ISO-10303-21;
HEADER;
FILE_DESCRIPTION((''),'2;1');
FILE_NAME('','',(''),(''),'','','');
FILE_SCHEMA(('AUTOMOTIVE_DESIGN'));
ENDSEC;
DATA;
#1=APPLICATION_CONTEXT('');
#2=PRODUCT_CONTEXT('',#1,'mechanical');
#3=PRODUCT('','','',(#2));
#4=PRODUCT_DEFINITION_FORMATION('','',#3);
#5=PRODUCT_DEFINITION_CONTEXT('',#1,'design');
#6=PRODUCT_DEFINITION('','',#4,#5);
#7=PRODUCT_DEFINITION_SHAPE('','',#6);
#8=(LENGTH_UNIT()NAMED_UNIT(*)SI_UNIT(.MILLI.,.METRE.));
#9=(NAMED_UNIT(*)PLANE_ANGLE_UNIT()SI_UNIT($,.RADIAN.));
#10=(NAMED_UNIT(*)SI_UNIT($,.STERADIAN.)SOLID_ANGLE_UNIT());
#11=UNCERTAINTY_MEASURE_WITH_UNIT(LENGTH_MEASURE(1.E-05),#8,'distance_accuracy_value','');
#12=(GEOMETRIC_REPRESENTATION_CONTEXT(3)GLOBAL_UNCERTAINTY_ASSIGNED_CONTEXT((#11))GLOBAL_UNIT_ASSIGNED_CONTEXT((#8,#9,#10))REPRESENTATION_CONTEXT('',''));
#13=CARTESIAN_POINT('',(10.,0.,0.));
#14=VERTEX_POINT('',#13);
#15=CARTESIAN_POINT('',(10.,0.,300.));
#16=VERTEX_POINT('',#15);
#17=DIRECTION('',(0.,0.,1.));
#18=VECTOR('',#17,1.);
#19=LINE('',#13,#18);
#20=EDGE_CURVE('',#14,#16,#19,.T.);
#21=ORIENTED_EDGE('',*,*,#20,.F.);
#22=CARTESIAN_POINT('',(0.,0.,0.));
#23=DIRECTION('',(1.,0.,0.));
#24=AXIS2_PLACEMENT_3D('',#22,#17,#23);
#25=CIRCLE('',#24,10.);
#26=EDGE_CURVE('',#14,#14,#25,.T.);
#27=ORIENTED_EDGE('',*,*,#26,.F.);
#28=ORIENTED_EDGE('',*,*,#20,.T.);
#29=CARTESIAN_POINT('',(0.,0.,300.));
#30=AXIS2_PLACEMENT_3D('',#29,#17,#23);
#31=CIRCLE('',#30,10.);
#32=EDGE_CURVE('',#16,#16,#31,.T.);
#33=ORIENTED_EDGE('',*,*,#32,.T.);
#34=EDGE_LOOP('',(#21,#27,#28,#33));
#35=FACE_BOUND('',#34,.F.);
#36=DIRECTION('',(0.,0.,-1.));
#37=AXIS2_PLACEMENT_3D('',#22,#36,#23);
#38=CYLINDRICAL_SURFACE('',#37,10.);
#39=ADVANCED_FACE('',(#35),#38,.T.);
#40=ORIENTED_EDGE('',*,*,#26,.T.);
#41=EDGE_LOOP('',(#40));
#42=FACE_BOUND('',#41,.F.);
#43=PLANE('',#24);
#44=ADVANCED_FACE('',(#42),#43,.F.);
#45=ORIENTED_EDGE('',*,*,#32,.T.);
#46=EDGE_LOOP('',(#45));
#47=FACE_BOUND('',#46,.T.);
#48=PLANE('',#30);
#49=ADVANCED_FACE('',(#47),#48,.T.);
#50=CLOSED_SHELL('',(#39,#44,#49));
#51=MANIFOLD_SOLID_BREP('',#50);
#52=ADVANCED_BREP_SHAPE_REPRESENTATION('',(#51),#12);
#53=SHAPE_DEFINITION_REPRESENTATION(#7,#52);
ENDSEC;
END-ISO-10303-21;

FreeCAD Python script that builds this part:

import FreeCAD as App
import Part
import Sketcher

V = App.Vector
Q = App.Units.Quantity

doc = App.newDocument("Part")
body = doc.addObject("PartDesign::Body", "Body")

sketch1 = doc.addObject("Sketcher::SketchObject", "Sketch")
body.addObject(sketch1)
sketch1.AttachmentSupport = (doc.XY_Plane, [""])
sketch1.MapMode = "FlatFace"
sketch1.addGeometry(Part.Circle(V(0, 0, 0), V(0, 0, 1), 10), False)
sketch1.addConstraint(Sketcher.Constraint("Coincident", 0, 3, -1, 1))
sketch1.addConstraint(Sketcher.Constraint("Diameter", 0, Q("20 mm")))
pad1 = doc.addObject("PartDesign::Pad", "Pad")
body.addObject(pad1)
pad1.Profile = sketch1
pad1.Length = 300

doc.recompute()
